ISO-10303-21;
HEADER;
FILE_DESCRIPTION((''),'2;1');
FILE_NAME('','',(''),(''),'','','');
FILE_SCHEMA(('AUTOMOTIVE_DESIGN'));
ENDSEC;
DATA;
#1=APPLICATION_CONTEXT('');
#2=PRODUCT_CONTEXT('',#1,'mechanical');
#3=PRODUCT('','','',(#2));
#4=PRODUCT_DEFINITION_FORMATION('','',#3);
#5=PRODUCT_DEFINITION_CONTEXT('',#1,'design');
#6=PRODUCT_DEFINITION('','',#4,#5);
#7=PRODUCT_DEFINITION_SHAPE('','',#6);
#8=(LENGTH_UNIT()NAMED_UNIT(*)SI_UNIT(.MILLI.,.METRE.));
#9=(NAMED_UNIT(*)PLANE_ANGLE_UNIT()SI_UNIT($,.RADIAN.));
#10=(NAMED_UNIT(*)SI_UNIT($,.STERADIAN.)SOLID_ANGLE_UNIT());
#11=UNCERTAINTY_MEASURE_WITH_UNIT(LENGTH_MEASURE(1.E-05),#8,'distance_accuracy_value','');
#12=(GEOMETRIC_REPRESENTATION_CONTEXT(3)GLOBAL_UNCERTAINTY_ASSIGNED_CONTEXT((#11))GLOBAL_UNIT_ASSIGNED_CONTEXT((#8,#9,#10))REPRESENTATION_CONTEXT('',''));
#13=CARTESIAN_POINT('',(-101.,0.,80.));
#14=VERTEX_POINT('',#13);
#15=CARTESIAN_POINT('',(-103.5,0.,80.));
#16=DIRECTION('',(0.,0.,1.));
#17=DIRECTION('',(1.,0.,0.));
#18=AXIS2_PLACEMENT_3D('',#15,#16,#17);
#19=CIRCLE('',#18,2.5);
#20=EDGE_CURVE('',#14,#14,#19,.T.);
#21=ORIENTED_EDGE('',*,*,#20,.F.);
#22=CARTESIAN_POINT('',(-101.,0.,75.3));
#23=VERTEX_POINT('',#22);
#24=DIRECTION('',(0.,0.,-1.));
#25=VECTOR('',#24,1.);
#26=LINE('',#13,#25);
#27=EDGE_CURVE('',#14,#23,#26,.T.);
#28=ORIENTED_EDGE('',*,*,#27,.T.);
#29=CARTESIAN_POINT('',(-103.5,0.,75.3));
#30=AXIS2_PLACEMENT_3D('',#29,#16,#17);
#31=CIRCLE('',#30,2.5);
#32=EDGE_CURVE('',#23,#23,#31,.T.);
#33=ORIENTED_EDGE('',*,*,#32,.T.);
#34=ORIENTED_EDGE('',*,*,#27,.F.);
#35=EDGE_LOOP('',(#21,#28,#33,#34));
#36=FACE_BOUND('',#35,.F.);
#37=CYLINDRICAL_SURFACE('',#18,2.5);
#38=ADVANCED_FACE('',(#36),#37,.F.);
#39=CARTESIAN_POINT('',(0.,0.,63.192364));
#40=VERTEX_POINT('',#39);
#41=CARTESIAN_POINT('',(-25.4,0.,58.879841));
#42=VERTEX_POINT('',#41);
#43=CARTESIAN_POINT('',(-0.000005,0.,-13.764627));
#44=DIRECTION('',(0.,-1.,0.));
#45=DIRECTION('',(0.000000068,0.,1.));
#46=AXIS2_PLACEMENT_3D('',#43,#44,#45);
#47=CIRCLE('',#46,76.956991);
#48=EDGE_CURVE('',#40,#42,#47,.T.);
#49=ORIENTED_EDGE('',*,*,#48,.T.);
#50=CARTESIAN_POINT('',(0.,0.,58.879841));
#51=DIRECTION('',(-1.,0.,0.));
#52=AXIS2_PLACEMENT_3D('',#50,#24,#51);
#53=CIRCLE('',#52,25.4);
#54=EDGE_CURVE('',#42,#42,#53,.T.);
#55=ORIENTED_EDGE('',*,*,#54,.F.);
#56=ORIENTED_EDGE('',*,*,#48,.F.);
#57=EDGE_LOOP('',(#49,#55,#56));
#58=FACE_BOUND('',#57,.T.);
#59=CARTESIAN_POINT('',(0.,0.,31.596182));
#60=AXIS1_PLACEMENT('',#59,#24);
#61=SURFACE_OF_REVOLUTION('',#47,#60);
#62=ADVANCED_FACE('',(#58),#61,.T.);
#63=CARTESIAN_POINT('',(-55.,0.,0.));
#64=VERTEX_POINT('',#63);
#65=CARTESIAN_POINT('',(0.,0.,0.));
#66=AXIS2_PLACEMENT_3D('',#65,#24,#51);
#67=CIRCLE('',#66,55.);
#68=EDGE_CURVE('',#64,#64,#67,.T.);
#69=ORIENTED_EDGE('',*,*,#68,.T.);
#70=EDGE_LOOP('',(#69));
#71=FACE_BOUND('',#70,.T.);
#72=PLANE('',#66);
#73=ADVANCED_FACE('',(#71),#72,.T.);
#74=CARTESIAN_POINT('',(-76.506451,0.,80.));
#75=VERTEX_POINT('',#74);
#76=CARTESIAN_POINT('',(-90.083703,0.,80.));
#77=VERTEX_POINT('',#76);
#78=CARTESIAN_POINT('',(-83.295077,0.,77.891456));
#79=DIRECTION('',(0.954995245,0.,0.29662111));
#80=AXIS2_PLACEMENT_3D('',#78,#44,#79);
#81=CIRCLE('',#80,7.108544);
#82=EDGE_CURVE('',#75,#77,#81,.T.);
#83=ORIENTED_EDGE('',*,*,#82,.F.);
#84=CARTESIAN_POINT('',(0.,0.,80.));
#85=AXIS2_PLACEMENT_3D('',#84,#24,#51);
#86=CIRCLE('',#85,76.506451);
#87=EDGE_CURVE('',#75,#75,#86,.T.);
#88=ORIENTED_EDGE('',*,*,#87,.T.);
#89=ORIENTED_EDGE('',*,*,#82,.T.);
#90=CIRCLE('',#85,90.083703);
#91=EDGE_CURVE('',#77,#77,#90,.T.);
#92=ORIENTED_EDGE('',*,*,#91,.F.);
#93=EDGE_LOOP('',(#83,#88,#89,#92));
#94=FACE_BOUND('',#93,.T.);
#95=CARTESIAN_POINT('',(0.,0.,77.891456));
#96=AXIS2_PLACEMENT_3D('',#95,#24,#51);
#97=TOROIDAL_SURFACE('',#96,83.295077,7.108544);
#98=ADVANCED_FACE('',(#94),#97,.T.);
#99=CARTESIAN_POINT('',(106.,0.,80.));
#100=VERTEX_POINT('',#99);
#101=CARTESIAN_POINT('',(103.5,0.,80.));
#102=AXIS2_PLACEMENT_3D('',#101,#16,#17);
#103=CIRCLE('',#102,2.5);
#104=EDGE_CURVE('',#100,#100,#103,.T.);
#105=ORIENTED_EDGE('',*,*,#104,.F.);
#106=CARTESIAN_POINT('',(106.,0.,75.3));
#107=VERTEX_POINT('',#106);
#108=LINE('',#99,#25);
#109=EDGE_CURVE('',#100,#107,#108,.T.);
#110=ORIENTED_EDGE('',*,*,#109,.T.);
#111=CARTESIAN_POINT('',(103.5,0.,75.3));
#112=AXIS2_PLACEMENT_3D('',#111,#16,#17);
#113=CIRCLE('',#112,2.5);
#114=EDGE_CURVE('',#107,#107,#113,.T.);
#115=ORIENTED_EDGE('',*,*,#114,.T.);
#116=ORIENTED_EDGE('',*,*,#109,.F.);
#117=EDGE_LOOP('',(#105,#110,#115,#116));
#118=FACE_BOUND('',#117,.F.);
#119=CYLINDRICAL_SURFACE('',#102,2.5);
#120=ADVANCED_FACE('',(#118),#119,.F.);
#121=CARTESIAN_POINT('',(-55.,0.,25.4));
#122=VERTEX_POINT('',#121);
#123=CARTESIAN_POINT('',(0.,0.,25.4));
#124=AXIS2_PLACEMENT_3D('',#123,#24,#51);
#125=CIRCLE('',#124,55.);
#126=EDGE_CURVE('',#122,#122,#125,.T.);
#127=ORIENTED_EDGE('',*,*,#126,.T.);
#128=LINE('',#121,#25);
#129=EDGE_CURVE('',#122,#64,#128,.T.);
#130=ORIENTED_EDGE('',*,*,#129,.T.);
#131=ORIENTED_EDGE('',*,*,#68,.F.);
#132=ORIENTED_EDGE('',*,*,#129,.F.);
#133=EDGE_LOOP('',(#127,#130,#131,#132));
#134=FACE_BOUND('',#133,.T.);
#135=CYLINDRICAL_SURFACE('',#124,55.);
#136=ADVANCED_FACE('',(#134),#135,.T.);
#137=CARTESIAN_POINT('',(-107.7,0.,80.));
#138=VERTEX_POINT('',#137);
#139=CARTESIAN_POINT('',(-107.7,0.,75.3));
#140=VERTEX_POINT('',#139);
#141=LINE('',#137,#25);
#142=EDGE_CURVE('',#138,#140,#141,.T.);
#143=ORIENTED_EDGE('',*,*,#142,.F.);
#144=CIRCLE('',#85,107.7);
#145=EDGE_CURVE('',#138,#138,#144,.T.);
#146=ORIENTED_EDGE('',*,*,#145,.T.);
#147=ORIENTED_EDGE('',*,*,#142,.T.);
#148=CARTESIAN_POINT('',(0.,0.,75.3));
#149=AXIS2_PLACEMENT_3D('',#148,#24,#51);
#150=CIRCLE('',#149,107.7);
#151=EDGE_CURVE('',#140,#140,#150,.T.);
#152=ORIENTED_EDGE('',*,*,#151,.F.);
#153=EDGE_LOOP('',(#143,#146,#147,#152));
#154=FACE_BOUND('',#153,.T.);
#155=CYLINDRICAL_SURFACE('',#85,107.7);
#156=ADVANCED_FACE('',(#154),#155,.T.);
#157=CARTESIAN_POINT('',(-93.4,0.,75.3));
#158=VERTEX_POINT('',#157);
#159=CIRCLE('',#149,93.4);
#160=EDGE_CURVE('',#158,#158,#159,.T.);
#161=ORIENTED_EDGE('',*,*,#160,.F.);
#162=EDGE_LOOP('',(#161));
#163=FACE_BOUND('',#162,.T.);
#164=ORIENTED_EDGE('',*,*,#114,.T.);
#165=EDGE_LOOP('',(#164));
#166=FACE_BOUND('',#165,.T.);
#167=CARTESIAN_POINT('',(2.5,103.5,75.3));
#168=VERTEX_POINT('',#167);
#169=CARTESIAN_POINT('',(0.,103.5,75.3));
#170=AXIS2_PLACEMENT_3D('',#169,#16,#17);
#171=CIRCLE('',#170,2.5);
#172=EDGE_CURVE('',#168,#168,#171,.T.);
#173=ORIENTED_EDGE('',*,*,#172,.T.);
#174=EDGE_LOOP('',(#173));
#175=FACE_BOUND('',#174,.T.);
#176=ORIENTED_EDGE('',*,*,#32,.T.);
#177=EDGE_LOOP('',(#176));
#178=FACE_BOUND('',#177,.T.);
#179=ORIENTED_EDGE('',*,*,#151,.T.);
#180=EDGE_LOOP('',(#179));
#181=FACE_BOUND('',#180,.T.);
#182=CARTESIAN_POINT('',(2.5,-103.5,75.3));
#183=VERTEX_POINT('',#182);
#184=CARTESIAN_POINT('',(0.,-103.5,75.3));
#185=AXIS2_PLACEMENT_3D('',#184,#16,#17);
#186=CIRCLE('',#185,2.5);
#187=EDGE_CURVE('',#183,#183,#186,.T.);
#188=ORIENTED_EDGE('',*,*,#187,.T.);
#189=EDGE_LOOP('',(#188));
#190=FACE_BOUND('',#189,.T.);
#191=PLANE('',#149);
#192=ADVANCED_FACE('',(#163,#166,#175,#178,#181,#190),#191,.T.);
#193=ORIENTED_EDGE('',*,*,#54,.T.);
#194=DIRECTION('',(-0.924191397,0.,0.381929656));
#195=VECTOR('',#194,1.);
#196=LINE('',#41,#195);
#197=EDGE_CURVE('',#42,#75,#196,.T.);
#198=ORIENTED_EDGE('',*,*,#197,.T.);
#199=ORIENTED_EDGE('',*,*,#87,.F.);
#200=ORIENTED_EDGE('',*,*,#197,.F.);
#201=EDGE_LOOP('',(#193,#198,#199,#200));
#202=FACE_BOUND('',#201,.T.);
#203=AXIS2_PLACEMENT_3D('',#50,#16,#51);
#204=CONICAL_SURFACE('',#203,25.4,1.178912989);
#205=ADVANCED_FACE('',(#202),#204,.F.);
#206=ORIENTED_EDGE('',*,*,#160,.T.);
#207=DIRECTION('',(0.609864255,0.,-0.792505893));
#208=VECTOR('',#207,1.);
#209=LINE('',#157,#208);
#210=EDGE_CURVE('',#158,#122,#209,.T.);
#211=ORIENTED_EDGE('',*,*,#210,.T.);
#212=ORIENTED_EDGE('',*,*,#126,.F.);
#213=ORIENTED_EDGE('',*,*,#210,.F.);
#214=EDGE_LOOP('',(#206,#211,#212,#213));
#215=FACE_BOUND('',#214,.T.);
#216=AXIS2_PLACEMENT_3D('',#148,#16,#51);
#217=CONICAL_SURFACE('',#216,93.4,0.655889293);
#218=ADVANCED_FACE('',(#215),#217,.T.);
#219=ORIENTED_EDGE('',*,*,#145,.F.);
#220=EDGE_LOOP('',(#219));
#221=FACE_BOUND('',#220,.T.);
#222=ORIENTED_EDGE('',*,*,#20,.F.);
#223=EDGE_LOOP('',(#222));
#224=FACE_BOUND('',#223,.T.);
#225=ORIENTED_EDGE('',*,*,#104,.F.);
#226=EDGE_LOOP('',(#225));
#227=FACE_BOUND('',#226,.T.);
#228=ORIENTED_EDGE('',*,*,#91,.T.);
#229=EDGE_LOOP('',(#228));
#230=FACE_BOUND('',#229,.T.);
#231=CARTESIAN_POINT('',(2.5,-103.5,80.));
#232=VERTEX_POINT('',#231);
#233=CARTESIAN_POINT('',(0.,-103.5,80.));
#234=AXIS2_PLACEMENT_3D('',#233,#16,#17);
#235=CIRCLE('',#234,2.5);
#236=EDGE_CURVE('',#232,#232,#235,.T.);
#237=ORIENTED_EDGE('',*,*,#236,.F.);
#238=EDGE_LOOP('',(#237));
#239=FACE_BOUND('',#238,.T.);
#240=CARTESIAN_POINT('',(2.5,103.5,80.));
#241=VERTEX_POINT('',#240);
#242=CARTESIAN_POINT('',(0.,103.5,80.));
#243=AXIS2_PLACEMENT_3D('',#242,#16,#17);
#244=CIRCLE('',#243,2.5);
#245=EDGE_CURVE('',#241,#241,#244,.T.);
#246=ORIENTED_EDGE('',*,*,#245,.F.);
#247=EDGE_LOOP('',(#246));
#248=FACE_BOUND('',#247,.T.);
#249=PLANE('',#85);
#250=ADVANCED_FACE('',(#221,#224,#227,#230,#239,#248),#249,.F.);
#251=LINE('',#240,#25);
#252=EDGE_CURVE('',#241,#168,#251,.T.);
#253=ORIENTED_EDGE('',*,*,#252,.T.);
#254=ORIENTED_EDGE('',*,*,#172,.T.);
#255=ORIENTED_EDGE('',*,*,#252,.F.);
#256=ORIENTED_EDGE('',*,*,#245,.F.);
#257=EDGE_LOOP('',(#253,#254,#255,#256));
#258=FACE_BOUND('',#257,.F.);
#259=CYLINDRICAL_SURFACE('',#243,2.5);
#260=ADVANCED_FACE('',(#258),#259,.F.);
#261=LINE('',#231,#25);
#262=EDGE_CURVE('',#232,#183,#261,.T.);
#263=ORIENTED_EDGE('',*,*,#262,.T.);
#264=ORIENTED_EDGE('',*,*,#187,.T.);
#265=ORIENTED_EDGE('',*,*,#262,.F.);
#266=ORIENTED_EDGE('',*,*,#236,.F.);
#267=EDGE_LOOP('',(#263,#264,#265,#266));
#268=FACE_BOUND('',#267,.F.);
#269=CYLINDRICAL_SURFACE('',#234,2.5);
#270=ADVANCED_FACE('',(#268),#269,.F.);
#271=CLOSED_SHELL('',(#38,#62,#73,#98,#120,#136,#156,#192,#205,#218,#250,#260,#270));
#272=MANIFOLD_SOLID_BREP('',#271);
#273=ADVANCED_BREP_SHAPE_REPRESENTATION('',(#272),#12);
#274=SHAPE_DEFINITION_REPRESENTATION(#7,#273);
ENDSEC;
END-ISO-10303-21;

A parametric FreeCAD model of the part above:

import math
import FreeCAD as App
import Part
import Sketcher
from FreeCAD import Vector

doc = App.newDocument("Part")
params = doc.addObject("Spreadsheet::Sheet", "Params")
for row, (alias, value) in enumerate([
    ("sketch1_width", "55 mm"),
    ("sketch1_width2", "14.3 mm"),
    ("sketch1_height", "4.7 mm"),
    ("sketch1_height2", "25.4 mm"),
    ("revolution_angle", "360 deg"),
    ("sketch2_diameter", "5 mm"),
], start=1):
    params.set(f"A{row}", alias)
    params.set(f"B{row}", "=" + value)
    params.setAlias(f"B{row}", alias)

body = doc.addObject("PartDesign::Body", "Body")

# Sketch on XZ plane
sketch1 = doc.addObject("Sketcher::SketchObject", "Sketch")
body.addObject(sketch1)
sketch1.AttachmentSupport = (doc.XZ_Plane, [""])
sketch1.MapMode = "FlatFace"
sketch1.addGeometry([
    Part.LineSegment(Vector(0, 0, 0), Vector(0, 63.2, 0)),  # 0
    Part.ArcOfCircle(Part.Circle(Vector(0, -13.8, 0), Vector(0, 0, 1), 77), math.radians(90), math.radians(109.27)),  # 1
    Part.LineSegment(Vector(-25.4, 58.9, 0), Vector(-76.5, 80, 0)),  # 2
    Part.ArcOfCircle(Part.Circle(Vector(-83.3, 77.9, 0), Vector(0, 0, 1), 7.1), math.radians(17), math.radians(163)),  # 3
    Part.LineSegment(Vector(-90.1, 80, 0), Vector(-107.7, 80, 0)),  # 4
    Part.LineSegment(Vector(-107.7, 80, 0), Vector(-107.7, 75.3, 0)),  # 5
    Part.LineSegment(Vector(-107.7, 75.3, 0), Vector(-93.4, 75.3, 0)),  # 6
    Part.LineSegment(Vector(-93.4, 75.3, 0), Vector(-55, 25.4, 0)),  # 7
    Part.LineSegment(Vector(-55, 25.4, 0), Vector(-55, 0, 0)),  # 8
    Part.LineSegment(Vector(-55, 0, 0), Vector(0, 0, 0)),  # 9
], False)
sketch1.addConstraint([
    Sketcher.Constraint("Coincident", 0, 2, 1, 1),
    Sketcher.Constraint("Coincident", 1, 2, 2, 1),
    Sketcher.Constraint("Coincident", 2, 2, 3, 1),
    Sketcher.Constraint("Coincident", 3, 2, 4, 1),
    Sketcher.Constraint("Coincident", 4, 2, 5, 1),
    Sketcher.Constraint("Coincident", 5, 2, 6, 1),
    Sketcher.Constraint("Coincident", 6, 2, 7, 1),
    Sketcher.Constraint("Coincident", 7, 2, 8, 1),
    Sketcher.Constraint("Coincident", 8, 2, 9, 1),
    Sketcher.Constraint("Coincident", 9, 2, 0, 1),
    Sketcher.Constraint("Vertical", 0),
    Sketcher.Constraint("Horizontal", 4),
    Sketcher.Constraint("Vertical", 5),
    Sketcher.Constraint("Horizontal", 6),
    Sketcher.Constraint("Vertical", 8),
    Sketcher.Constraint("Horizontal", 9),
    Sketcher.Constraint("Coincident", 9, 2, -1, 1),
    Sketcher.Constraint("Horizontal", 2, 2, 3, 2),
    Sketcher.Constraint("DistanceX", 9, 1, 9, 2, 55.0),
    Sketcher.Constraint("DistanceX", 6, 1, 6, 2, 14.3),
    Sketcher.Constraint("DistanceY", 5, 2, 5, 1, 4.7),
    Sketcher.Constraint("DistanceY", 8, 2, 8, 1, 25.4),
    Sketcher.Constraint("DistanceY", -1, 1, 2, 2, 80.0),
    Sketcher.Constraint("DistanceX", 1, 2, -1, 1, 25.4),
    Sketcher.Constraint("DistanceX", 4, 2, -1, 1, 107.7),
    Sketcher.Constraint("Radius", 1, 76.956991),
    Sketcher.Constraint("Radius", 3, 7.108544),
    Sketcher.Constraint("DistanceX", 4, 2, 4, 1, 17.616297),
    Sketcher.Constraint("DistanceY", 0, 1, 0, 2, 63.192364),
    Sketcher.Constraint("DistanceY", -1, 1, 1, 2, 58.879841),
    Sketcher.Constraint("DistanceX", 2, 2, -1, 1, 76.506451),
])
sketch1.setExpression("Constraints[18]", "Params.sketch1_width")
sketch1.setExpression("Constraints[19]", "Params.sketch1_width2")
sketch1.setExpression("Constraints[20]", "Params.sketch1_height")
sketch1.setExpression("Constraints[21]", "Params.sketch1_height2")
revolution = doc.addObject("PartDesign::Revolution", "Revolution")
body.addObject(revolution)
revolution.Profile = sketch1
revolution.ReferenceAxis = (sketch1, ["V_Axis"])
revolution.setExpression("Angle", "Params.revolution_angle")

# Sketch on XY plane
sketch2 = doc.addObject("Sketcher::SketchObject", "Sketch001")
body.addObject(sketch2)
sketch2.AttachmentSupport = (doc.XY_Plane, [""])
sketch2.MapMode = "FlatFace"
sketch2.AttachmentOffset = App.Placement(Vector(0, 0, 80), App.Rotation())
sketch2.addGeometry([
    Part.Circle(Vector(-103.5, 0, 0), Vector(0, 0, 1), 2.5),
    Part.Circle(Vector(0, 103.5, 0), Vector(0, 0, 1), 2.5),
    Part.Circle(Vector(103.5, 0, 0), Vector(0, 0, 1), 2.5),
    Part.Circle(Vector(0, -103.5, 0), Vector(0, 0, 1), 2.5),
], False)
sketch2.addConstraint([
    Sketcher.Constraint("Equal", 0, 1),
    Sketcher.Constraint("Equal", 1, 2),
    Sketcher.Constraint("Equal", 2, 3),
    Sketcher.Constraint("Symmetric", 0, 3, 2, 3, -1, 1),
    Sketcher.Constraint("Symmetric", 1, 3, 3, 3, -1, 1),
    Sketcher.Constraint("PointOnObject", 0, 3, -1),
    Sketcher.Constraint("PointOnObject", 1, 3, -2),
    Sketcher.Constraint("Diameter", 0, 5.0),
    Sketcher.Constraint("DistanceX", 0, 3, 2, 3, 207.0),
    Sketcher.Constraint("DistanceY", 3, 3, 1, 3, 207.0),
])
sketch2.setExpression("Constraints[7]", "Params.sketch2_diameter")
pocket1 = doc.addObject("PartDesign::Pocket", "Pocket")
body.addObject(pocket1)
pocket1.Profile = sketch2
pocket1.Type = "ThroughAll"

doc.recompute()
